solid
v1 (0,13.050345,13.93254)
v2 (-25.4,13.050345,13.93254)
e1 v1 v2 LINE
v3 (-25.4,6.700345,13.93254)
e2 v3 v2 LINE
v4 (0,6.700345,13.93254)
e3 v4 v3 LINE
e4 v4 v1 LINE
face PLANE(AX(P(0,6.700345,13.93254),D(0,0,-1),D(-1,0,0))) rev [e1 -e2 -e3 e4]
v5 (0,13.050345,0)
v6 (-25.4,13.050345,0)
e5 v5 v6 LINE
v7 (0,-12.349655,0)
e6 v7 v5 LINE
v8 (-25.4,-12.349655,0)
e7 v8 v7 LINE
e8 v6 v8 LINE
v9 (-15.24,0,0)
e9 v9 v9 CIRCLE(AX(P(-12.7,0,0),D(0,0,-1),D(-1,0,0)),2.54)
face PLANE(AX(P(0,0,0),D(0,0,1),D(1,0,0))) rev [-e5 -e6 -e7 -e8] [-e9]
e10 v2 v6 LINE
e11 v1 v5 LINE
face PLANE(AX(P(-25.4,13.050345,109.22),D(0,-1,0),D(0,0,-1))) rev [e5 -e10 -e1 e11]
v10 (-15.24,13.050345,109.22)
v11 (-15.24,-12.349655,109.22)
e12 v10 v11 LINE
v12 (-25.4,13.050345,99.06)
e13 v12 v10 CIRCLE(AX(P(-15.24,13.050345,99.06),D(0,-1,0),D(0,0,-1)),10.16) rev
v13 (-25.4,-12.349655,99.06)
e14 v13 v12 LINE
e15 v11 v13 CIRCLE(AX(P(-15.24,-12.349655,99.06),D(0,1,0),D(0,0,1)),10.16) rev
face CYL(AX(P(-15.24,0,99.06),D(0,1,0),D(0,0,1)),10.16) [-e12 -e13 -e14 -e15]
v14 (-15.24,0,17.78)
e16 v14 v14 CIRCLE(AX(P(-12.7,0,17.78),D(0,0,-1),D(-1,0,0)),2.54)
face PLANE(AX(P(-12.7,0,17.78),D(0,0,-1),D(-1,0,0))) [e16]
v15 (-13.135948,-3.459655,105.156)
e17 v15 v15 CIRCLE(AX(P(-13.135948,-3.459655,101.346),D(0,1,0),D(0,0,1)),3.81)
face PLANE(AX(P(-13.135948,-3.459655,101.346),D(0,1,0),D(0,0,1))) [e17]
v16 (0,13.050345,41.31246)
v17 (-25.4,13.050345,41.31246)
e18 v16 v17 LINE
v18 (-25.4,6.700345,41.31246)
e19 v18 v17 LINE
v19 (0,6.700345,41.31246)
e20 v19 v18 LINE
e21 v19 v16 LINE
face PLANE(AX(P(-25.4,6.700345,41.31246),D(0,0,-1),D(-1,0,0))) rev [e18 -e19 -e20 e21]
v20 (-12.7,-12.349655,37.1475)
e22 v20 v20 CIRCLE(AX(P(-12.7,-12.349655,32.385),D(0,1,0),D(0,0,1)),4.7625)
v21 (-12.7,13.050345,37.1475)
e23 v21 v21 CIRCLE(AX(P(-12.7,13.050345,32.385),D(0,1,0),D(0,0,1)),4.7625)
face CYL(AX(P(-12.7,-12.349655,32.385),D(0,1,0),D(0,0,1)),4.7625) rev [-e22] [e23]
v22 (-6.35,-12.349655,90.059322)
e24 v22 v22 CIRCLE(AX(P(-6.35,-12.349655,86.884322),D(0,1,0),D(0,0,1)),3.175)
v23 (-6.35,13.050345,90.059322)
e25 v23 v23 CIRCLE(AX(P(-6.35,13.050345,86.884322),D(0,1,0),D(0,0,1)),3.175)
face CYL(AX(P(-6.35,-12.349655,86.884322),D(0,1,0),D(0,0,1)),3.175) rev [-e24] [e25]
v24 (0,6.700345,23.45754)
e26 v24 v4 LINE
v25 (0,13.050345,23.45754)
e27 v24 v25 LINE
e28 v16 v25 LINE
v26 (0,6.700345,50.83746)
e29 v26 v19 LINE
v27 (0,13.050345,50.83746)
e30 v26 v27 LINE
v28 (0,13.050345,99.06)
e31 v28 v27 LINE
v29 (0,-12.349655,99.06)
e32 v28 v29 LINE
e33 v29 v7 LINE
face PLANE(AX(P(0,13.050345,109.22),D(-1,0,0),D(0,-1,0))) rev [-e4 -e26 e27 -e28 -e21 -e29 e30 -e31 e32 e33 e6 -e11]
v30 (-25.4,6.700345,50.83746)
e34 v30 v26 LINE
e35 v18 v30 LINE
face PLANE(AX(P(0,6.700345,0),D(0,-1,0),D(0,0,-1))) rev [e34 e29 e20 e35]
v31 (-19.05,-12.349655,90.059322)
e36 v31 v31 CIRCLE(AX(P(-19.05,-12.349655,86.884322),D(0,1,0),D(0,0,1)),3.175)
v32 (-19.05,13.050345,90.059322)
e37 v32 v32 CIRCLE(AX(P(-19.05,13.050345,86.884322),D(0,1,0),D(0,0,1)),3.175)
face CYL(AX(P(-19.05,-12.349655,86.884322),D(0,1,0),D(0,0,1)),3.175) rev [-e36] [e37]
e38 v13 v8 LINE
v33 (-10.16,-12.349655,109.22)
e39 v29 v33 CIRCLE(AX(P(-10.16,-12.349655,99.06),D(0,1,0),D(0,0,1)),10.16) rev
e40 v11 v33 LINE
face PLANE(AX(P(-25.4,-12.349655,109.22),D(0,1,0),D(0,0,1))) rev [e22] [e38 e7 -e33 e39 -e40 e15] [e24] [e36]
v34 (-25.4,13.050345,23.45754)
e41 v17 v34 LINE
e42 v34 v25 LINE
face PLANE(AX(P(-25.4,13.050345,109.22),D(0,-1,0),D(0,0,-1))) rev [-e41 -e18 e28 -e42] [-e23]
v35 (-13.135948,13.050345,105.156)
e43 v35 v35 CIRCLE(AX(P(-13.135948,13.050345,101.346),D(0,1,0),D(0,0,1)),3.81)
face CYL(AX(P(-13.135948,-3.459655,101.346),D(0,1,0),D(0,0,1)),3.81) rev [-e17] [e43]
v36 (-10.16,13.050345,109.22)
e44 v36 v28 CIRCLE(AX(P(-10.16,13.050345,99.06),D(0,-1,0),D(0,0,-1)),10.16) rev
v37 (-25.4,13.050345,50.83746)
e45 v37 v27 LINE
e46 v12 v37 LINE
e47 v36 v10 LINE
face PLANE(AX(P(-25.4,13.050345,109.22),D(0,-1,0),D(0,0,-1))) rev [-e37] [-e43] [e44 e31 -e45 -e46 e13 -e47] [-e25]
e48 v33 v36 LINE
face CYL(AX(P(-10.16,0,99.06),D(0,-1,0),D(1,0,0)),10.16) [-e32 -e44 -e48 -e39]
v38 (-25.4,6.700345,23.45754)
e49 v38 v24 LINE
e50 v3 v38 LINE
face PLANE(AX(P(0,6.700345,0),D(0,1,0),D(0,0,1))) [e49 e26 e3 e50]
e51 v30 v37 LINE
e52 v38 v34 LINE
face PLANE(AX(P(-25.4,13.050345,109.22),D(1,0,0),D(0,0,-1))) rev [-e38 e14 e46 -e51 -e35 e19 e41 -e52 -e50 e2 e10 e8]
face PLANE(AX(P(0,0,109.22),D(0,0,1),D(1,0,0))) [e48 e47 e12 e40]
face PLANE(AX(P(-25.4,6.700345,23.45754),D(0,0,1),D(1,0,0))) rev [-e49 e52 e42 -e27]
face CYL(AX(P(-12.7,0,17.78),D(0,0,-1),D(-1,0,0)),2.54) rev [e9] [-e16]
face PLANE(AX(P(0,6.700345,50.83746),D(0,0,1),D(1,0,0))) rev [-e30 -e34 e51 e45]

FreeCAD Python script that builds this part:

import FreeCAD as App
import Part
import Sketcher
Q = App.Units.Quantity


def edges_at(feature, points):
    """Names of the edges that pass closest to the given points."""
    edges = feature.Shape.Edges
    near = lambda p: min(range(len(edges)), key=lambda i: edges[i].distToShape(Part.Vertex(*p))[0])
    return sorted({f"Edge{near(p) + 1}" for p in points})

doc = App.newDocument("Part")
params = doc.addObject("Spreadsheet::Sheet", "Params")
for row, (alias, value) in enumerate([
    ("sketch1_width", "1 in"),
    ("pad1_length", "4.3 in"),
    ("sketch2_diameter", "0.2 in"),
    ("pocket1_length", "0.7 in"),
    ("sketch3_diameter", "0.375 in"),
    ("sketch4_width", "1 in"),
    ("sketch4_height", "0.375 in"),
    ("pocket3_length", "0.25 in"),
    ("sketch5_diameter", "0.25 in"),
    ("sketch6_diameter", "0.3 in"),
    ("pocket5_length", "0.65 in"),
    ("fillet_radius", "0.4 in"),
    ("fillet2_radius", "0.4 in"),
], start=1):
    params.set(f"A{row}", alias)
    params.set(f"B{row}", "=" + value)
    params.setAlias(f"B{row}", alias)

body = doc.addObject("PartDesign::Body", "Body")

sketch1 = body.newObject("Sketcher::SketchObject", "Sketch")
sketch1.AttachmentSupport = (doc.getObject("XY_Plane"), [""])
sketch1.MapMode = "FlatFace"
sketch1.addGeometry(Part.LineSegment(App.Vector(-25, 13, 0), App.Vector(-25, -12, 0)), False)
sketch1.addGeometry(Part.LineSegment(App.Vector(-25, -12, 0), App.Vector(0, -12, 0)), False)
sketch1.addGeometry(Part.LineSegment(App.Vector(0, -12, 0), App.Vector(0, 13, 0)), False)
sketch1.addGeometry(Part.LineSegment(App.Vector(0, 13, 0), App.Vector(-25, 13, 0)), False)
sketch1.addConstraint(Sketcher.Constraint("Coincident", 0, 2, 1, 1))
sketch1.addConstraint(Sketcher.Constraint("Coincident", 1, 2, 2, 1))
sketch1.addConstraint(Sketcher.Constraint("Coincident", 2, 2, 3, 1))
sketch1.addConstraint(Sketcher.Constraint("Coincident", 3, 2, 0, 1))
sketch1.addConstraint(Sketcher.Constraint("Vertical", 0))
sketch1.addConstraint(Sketcher.Constraint("Horizontal", 1))
sketch1.addConstraint(Sketcher.Constraint("Vertical", 2))
sketch1.addConstraint(Sketcher.Constraint("Horizontal", 3))
sketch1.addConstraint(Sketcher.Constraint("PointOnObject", 1, 2, -2))
sketch1.addConstraint(Sketcher.Constraint("Equal", 3, 0))
sketch1.addConstraint(Sketcher.Constraint("DistanceX", 1, 1, 1, 2, Q("1 in")))
sketch1.addConstraint(Sketcher.Constraint("DistanceY", 0, 2, -1, 1, 12.349655))
sketch1.setExpression("Constraints[10]", "Params.sketch1_width")
pad1 = body.newObject("PartDesign::Pad", "Pad")
pad1.Profile = sketch1
pad1.setExpression("Length", "Params.pad1_length")

sketch2 = body.newObject("Sketcher::SketchObject", "Sketch001")
sketch2.AttachmentSupport = (doc.getObject("XY_Plane"), [""])
sketch2.MapMode = "FlatFace"
sketch2.addGeometry(Part.Circle(App.Vector(-12.7, 0, 0), App.Vector(0, 0, 1), 2.5), False)
sketch2.addConstraint(Sketcher.Constraint("PointOnObject", 0, 3, -1))
sketch2.addConstraint(Sketcher.Constraint("Diameter", 0, Q("0.2 in")))
sketch2.addConstraint(Sketcher.Constraint("DistanceX", 0, 3, -1, 1, Q("0.5 in")))
sketch2.setExpression("Constraints[1]", "Params.sketch2_diameter")
pocket1 = body.newObject("PartDesign::Pocket", "Pocket")
pocket1.Profile = sketch2
pocket1.setExpression("Length", "Params.pocket1_length")
pocket1.Reversed = True

sketch3 = body.newObject("Sketcher::SketchObject", "Sketch002")
sketch3.AttachmentSupport = (doc.getObject("XZ_Plane"), [""])
sketch3.MapMode = "FlatFace"
sketch3.AttachmentOffset = App.Placement(App.Vector(0, 0, -13.050345), App.Rotation())
sketch3.addGeometry(Part.Circle(App.Vector(-12.7, 32.4, 0), App.Vector(0, 0, 1), 4.8), False)
sketch3.addConstraint(Sketcher.Constraint("Diameter", 0, Q("0.375 in")))
sketch3.addConstraint(Sketcher.Constraint("DistanceX", 0, 3, -1, 1, Q("0.5 in")))
sketch3.addConstraint(Sketcher.Constraint("DistanceY", -1, 1, 0, 3, Q("1.275 in")))
sketch3.setExpression("Constraints[0]", "Params.sketch3_diameter")
pocket2 = body.newObject("PartDesign::Pocket", "Pocket001")
pocket2.Profile = sketch3
pocket2.Type = "ThroughAll"
pocket2.Reversed = True

sketch4 = body.newObject("Sketcher::SketchObject", "Sketch003")
sketch4.AttachmentSupport = (doc.getObject("XZ_Plane"), [""])
sketch4.MapMode = "FlatFace"
sketch4.AttachmentOffset = App.Placement(App.Vector(0, 0, -13.050345), App.Rotation())
sketch4.addGeometry(Part.LineSegment(App.Vector(-25, 14, 0), App.Vector(-25, 23, 0)), False)
sketch4.addGeometry(Part.LineSegment(App.Vector(-25, 23, 0), App.Vector(0, 23, 0)), False)
sketch4.addGeometry(Part.LineSegment(App.Vector(0, 23, 0), App.Vector(0, 14, 0)), False)
sketch4.addGeometry(Part.LineSegment(App.Vector(0, 14, 0), App.Vector(-25, 14, 0)), False)
sketch4.addGeometry(Part.LineSegment(App.Vector(-25, 41, 0), App.Vector(-25, 51, 0)), False)
sketch4.addGeometry(Part.LineSegment(App.Vector(-25, 51, 0), App.Vector(0, 51, 0)), False)
sketch4.addGeometry(Part.LineSegment(App.Vector(0, 51, 0), App.Vector(0, 41, 0)), False)
sketch4.addGeometry(Part.LineSegment(App.Vector(0, 41, 0), App.Vector(-25, 41, 0)), False)
sketch4.addConstraint(Sketcher.Constraint("Coincident", 0, 2, 1, 1))
sketch4.addConstraint(Sketcher.Constraint("Coincident", 1, 2, 2, 1))
sketch4.addConstraint(Sketcher.Constraint("Coincident", 2, 2, 3, 1))
sketch4.addConstraint(Sketcher.Constraint("Coincident", 3, 2, 0, 1))
sketch4.addConstraint(Sketcher.Constraint("Coincident", 4, 2, 5, 1))
sketch4.addConstraint(Sketcher.Constraint("Coincident", 5, 2, 6, 1))
sketch4.addConstraint(Sketcher.Constraint("Coincident", 6, 2, 7, 1))
sketch4.addConstraint(Sketcher.Constraint("Coincident", 7, 2, 4, 1))
sketch4.addConstraint(Sketcher.Constraint("Vertical", 0))
sketch4.addConstraint(Sketcher.Constraint("Horizontal", 1))
sketch4.addConstraint(Sketcher.Constraint("Vertical", 2))
sketch4.addConstraint(Sketcher.Constraint("Horizontal", 3))
sketch4.addConstraint(Sketcher.Constraint("Vertical", 4))
sketch4.addConstraint(Sketcher.Constraint("Horizontal", 5))
sketch4.addConstraint(Sketcher.Constraint("Vertical", 6))
sketch4.addConstraint(Sketcher.Constraint("Horizontal", 7))
sketch4.addConstraint(Sketcher.Constraint("PointOnObject", 1, 2, -2))
sketch4.addConstraint(Sketcher.Constraint("PointOnObject", 5, 2, -2))
sketch4.addConstraint(Sketcher.Constraint("Vertical", 3, 2, 4, 2))
sketch4.addConstraint(Sketcher.Constraint("Equal", 2, 4))
sketch4.addConstraint(Sketcher.Constraint("DistanceX", 1, 1, 1, 2, Q("1 in")))
sketch4.addConstraint(Sketcher.Constraint("DistanceY", 0, 1, 0, 2, Q("0.375 in")))
sketch4.addConstraint(Sketcher.Constraint("DistanceY", -1, 1, 0, 2, 23.45754))
sketch4.addConstraint(Sketcher.Constraint("DistanceY", -1, 1, 4, 2, 50.83746))
sketch4.setExpression("Constraints[20]", "Params.sketch4_width")
sketch4.setExpression("Constraints[21]", "Params.sketch4_height")
pocket3 = body.newObject("PartDesign::Pocket", "Pocket002")
pocket3.Profile = sketch4
pocket3.setExpression("Length", "Params.pocket3_length")
pocket3.Reversed = True

sketch5 = body.newObject("Sketcher::SketchObject", "Sketch004")
sketch5.AttachmentSupport = (doc.getObject("XZ_Plane"), [""])
sketch5.MapMode = "FlatFace"
sketch5.AttachmentOffset = App.Placement(App.Vector(0, 0, -13.050345), App.Rotation())
sketch5.addGeometry(Part.Circle(App.Vector(-19.1, 86.9, 0), App.Vector(0, 0, 1), 3.2), False)
sketch5.addGeometry(Part.Circle(App.Vector(-6.3, 86.9, 0), App.Vector(0, 0, 1), 3.2), False)
sketch5.addConstraint(Sketcher.Constraint("Equal", 0, 1))
sketch5.addConstraint(Sketcher.Constraint("Horizontal", 0, 3, 1, 3))
sketch5.addConstraint(Sketcher.Constraint("Diameter", 0, Q("0.25 in")))
sketch5.addConstraint(Sketcher.Constraint("DistanceX", 0, 3, 1, 3, Q("0.5 in")))
sketch5.addConstraint(Sketcher.Constraint("DistanceX", 0, 3, -1, 1, Q("0.75 in")))
sketch5.addConstraint(Sketcher.Constraint("DistanceY", -1, 1, 0, 3, 86.884322))
sketch5.setExpression("Constraints[2]", "Params.sketch5_diameter")
pocket4 = body.newObject("PartDesign::Pocket", "Pocket003")
pocket4.Profile = sketch5
pocket4.Type = "ThroughAll"
pocket4.Reversed = True

sketch6 = body.newObject("Sketcher::SketchObject", "Sketch005")
sketch6.AttachmentSupport = (doc.getObject("XZ_Plane"), [""])
sketch6.MapMode = "FlatFace"
sketch6.AttachmentOffset = App.Placement(App.Vector(0, 0, -13.050345), App.Rotation())
sketch6.addGeometry(Part.Circle(App.Vector(-13.1, 101.3, 0), App.Vector(0, 0, 1), 3.8), False)
sketch6.addConstraint(Sketcher.Constraint("Diameter", 0, Q("0.3 in")))
sketch6.addConstraint(Sketcher.Constraint("DistanceY", -1, 1, 0, 3, Q("3.99 in")))
sketch6.addConstraint(Sketcher.Constraint("DistanceX", 0, 3, -1, 1, 13.135948))
sketch6.setExpression("Constraints[0]", "Params.sketch6_diameter")
pocket5 = body.newObject("PartDesign::Pocket", "Pocket004")
pocket5.Profile = sketch6
pocket5.setExpression("Length", "Params.pocket5_length")
pocket5.Reversed = True
doc.recompute()

fillet = body.newObject("PartDesign::Fillet", "Fillet")
fillet.Base = (pocket5, edges_at(pocket5, [(0, 0.35, 109.22)]))
fillet.setExpression("Radius", "Params.fillet_radius")
doc.recompute()

fillet2 = body.newObject("PartDesign::Fillet", "Fillet001")
fillet2.Base = (fillet, edges_at(fillet, [(-25.4, 0.35, 109.22)]))
fillet2.setExpression("Radius", "Params.fillet2_radius")

doc.recompute()
